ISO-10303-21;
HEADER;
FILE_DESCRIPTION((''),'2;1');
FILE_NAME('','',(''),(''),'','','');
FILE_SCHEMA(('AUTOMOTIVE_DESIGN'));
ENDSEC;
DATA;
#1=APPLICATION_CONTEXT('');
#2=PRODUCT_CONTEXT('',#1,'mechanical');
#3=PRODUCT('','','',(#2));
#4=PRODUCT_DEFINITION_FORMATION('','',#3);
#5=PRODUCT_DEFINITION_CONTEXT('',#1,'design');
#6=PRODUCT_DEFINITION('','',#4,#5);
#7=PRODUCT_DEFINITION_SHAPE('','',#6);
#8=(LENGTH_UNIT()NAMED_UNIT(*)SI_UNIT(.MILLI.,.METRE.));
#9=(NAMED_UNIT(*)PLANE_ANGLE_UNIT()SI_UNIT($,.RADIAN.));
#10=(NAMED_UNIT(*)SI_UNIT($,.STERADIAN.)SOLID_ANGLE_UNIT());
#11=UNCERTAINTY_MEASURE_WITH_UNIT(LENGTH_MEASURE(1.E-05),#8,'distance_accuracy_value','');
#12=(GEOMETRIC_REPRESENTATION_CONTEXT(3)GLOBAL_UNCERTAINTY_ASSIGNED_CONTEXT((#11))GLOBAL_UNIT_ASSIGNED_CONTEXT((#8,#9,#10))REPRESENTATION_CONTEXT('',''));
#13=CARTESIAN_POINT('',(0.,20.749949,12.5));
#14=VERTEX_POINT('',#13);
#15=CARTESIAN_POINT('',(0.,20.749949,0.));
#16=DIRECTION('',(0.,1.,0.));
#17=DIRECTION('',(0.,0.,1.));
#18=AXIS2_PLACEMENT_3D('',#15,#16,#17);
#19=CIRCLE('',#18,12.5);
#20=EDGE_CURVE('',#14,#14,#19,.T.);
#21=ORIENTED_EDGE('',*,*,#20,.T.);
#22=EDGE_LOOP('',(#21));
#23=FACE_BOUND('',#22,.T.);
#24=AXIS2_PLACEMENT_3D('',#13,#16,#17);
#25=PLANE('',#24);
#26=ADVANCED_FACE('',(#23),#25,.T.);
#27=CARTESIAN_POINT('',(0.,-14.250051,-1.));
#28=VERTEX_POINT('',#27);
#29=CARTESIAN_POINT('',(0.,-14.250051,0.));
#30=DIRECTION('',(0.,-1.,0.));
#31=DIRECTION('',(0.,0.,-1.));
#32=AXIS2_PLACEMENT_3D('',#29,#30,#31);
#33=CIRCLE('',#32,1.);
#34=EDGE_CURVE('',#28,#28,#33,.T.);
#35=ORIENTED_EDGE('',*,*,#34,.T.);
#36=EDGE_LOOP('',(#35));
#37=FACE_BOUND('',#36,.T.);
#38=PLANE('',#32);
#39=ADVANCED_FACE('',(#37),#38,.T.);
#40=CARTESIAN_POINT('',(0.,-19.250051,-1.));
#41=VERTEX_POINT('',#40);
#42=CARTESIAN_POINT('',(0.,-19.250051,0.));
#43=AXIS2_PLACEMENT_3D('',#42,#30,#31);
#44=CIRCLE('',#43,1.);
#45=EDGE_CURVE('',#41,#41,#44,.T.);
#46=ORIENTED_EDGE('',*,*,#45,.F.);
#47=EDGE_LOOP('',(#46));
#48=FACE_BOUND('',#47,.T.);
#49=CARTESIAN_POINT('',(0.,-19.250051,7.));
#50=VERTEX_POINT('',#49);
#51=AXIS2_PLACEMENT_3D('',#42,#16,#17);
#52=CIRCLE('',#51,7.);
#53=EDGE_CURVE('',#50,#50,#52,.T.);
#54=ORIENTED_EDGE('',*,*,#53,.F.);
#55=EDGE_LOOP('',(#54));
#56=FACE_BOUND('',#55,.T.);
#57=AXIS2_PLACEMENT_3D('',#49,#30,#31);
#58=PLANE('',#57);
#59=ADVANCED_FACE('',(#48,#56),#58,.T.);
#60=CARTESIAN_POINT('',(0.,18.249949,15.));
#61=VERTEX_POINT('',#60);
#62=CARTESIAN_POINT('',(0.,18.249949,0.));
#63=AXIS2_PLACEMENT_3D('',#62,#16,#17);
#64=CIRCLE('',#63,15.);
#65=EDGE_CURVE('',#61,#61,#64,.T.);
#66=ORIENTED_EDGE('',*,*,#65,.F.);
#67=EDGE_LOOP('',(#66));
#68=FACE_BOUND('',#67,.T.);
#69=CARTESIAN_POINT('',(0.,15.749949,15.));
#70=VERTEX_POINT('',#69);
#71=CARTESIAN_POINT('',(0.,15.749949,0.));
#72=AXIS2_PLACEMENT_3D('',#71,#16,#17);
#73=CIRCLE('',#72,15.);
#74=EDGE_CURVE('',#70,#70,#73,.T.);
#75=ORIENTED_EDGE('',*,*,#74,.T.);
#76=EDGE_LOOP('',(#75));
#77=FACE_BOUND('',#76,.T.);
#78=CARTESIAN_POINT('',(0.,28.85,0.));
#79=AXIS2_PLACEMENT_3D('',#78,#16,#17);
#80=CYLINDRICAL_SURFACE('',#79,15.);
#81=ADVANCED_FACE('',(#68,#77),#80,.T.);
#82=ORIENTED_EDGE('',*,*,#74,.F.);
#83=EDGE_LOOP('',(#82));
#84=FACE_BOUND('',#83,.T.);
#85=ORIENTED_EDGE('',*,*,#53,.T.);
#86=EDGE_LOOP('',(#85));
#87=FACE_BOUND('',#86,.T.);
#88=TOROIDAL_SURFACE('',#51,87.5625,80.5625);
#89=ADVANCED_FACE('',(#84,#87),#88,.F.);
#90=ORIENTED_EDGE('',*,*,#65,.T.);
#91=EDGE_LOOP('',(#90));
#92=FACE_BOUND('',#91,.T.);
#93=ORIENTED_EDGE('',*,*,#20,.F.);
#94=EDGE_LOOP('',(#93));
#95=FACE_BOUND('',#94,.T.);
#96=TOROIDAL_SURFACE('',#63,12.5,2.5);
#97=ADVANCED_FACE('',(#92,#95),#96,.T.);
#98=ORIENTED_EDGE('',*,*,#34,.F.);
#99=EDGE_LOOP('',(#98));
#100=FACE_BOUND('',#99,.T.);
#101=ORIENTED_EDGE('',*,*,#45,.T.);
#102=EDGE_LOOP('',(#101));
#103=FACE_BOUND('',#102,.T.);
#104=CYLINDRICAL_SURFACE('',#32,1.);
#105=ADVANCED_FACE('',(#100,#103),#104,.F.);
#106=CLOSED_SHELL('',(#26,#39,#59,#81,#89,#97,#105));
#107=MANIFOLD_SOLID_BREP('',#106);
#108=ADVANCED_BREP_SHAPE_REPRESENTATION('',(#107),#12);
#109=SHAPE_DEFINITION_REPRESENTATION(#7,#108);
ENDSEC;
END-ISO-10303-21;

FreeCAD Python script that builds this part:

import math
import FreeCAD as App
import Part
import Sketcher
from FreeCAD import Vector

doc = App.newDocument("Part")
body = doc.addObject("PartDesign::Body", "Body")

# Sketch on YZ plane
sketch1 = doc.addObject("Sketcher::SketchObject", "Sketch")
body.addObject(sketch1)
sketch1.AttachmentSupport = (doc.YZ_Plane, [""])
sketch1.MapMode = "FlatFace"
sketch1.addGeometry(Part.LineSegment(Vector(-19.3, 7, 0), Vector(-19.3, 0, 0)), False)
sketch1.addGeometry(Part.LineSegment(Vector(-19.3, 0, 0), Vector(20.7, 0, 0)), False)
sketch1.addGeometry(Part.LineSegment(Vector(20.7, 0, 0), Vector(20.7, 12.5, 0)), False)
sketch1.addGeometry(Part.ArcOfCircle(Part.Circle(Vector(18.2, 12.5, 0), Vector(0, 0, 1), 2.5), math.radians(0), math.radians(90)), False)
sketch1.addGeometry(Part.LineSegment(Vector(18.2, 15, 0), Vector(15.7, 15, 0)), False)
sketch1.addGeometry(Part.ArcOfCircle(Part.Circle(Vector(-19.3, 87.6, 0), Vector(0, 0, 1), 80.6), math.radians(-90), math.radians(-64)), False)
sketch1.addConstraint(Sketcher.Constraint("Coincident", 0, 2, 1, 1))
sketch1.addConstraint(Sketcher.Constraint("Coincident", 1, 2, 2, 1))
sketch1.addConstraint(Sketcher.Constraint("Tangent", 2, 2, 3, 1))
sketch1.addConstraint(Sketcher.Constraint("Tangent", 3, 2, 4, 1))
sketch1.addConstraint(Sketcher.Constraint("Coincident", 4, 2, 5, 2))
sketch1.addConstraint(Sketcher.Constraint("Coincident", 5, 1, 0, 1))
sketch1.addConstraint(Sketcher.Constraint("Vertical", 0))
sketch1.addConstraint(Sketcher.Constraint("Horizontal", 1))
sketch1.addConstraint(Sketcher.Constraint("Vertical", 2))
sketch1.addConstraint(Sketcher.Constraint("Horizontal", 4))
sketch1.addConstraint(Sketcher.Constraint("PointOnObject", 0, 2, -1))
sketch1.addConstraint(Sketcher.Constraint("Vertical", 5, 3, 0, 2))
sketch1.addConstraint(Sketcher.Constraint("Radius", 3, 2.5))
sketch1.addConstraint(Sketcher.Constraint("DistanceX", 1, 1, 1, 2, 40.0))
sketch1.addConstraint(Sketcher.Constraint("DistanceY", 0, 2, 0, 1, 7.0))
sketch1.addConstraint(Sketcher.Constraint("DistanceX", 4, 2, 4, 1, 2.5))
sketch1.addConstraint(Sketcher.Constraint("DistanceY", 2, 1, 2, 2, 12.5))
sketch1.addConstraint(Sketcher.Constraint("DistanceX", -1, 1, 3, 3, 18.249949))
revolution = doc.addObject("PartDesign::Revolution", "Revolution")
body.addObject(revolution)
revolution.Profile = sketch1
revolution.ReferenceAxis = (sketch1, ["H_Axis"])
revolution.Angle = 360

# Sketch on XZ plane
sketch2 = doc.addObject("Sketcher::SketchObject", "Sketch001")
body.addObject(sketch2)
sketch2.AttachmentSupport = (doc.XZ_Plane, [""])
sketch2.MapMode = "FlatFace"
sketch2.AttachmentOffset = App.Placement(Vector(0, 0, 19.250051), App.Rotation())
sketch2.addGeometry(Part.Circle(Vector(0, 0, 0), Vector(0, 0, 1), 1), False)
sketch2.addConstraint(Sketcher.Constraint("Coincident", 0, 3, -1, 1))
sketch2.addConstraint(Sketcher.Constraint("Diameter", 0, 2.0))
pocket1 = doc.addObject("PartDesign::Pocket", "Pocket")
body.addObject(pocket1)
pocket1.Profile = sketch2
pocket1.Length = 5

doc.recompute()
